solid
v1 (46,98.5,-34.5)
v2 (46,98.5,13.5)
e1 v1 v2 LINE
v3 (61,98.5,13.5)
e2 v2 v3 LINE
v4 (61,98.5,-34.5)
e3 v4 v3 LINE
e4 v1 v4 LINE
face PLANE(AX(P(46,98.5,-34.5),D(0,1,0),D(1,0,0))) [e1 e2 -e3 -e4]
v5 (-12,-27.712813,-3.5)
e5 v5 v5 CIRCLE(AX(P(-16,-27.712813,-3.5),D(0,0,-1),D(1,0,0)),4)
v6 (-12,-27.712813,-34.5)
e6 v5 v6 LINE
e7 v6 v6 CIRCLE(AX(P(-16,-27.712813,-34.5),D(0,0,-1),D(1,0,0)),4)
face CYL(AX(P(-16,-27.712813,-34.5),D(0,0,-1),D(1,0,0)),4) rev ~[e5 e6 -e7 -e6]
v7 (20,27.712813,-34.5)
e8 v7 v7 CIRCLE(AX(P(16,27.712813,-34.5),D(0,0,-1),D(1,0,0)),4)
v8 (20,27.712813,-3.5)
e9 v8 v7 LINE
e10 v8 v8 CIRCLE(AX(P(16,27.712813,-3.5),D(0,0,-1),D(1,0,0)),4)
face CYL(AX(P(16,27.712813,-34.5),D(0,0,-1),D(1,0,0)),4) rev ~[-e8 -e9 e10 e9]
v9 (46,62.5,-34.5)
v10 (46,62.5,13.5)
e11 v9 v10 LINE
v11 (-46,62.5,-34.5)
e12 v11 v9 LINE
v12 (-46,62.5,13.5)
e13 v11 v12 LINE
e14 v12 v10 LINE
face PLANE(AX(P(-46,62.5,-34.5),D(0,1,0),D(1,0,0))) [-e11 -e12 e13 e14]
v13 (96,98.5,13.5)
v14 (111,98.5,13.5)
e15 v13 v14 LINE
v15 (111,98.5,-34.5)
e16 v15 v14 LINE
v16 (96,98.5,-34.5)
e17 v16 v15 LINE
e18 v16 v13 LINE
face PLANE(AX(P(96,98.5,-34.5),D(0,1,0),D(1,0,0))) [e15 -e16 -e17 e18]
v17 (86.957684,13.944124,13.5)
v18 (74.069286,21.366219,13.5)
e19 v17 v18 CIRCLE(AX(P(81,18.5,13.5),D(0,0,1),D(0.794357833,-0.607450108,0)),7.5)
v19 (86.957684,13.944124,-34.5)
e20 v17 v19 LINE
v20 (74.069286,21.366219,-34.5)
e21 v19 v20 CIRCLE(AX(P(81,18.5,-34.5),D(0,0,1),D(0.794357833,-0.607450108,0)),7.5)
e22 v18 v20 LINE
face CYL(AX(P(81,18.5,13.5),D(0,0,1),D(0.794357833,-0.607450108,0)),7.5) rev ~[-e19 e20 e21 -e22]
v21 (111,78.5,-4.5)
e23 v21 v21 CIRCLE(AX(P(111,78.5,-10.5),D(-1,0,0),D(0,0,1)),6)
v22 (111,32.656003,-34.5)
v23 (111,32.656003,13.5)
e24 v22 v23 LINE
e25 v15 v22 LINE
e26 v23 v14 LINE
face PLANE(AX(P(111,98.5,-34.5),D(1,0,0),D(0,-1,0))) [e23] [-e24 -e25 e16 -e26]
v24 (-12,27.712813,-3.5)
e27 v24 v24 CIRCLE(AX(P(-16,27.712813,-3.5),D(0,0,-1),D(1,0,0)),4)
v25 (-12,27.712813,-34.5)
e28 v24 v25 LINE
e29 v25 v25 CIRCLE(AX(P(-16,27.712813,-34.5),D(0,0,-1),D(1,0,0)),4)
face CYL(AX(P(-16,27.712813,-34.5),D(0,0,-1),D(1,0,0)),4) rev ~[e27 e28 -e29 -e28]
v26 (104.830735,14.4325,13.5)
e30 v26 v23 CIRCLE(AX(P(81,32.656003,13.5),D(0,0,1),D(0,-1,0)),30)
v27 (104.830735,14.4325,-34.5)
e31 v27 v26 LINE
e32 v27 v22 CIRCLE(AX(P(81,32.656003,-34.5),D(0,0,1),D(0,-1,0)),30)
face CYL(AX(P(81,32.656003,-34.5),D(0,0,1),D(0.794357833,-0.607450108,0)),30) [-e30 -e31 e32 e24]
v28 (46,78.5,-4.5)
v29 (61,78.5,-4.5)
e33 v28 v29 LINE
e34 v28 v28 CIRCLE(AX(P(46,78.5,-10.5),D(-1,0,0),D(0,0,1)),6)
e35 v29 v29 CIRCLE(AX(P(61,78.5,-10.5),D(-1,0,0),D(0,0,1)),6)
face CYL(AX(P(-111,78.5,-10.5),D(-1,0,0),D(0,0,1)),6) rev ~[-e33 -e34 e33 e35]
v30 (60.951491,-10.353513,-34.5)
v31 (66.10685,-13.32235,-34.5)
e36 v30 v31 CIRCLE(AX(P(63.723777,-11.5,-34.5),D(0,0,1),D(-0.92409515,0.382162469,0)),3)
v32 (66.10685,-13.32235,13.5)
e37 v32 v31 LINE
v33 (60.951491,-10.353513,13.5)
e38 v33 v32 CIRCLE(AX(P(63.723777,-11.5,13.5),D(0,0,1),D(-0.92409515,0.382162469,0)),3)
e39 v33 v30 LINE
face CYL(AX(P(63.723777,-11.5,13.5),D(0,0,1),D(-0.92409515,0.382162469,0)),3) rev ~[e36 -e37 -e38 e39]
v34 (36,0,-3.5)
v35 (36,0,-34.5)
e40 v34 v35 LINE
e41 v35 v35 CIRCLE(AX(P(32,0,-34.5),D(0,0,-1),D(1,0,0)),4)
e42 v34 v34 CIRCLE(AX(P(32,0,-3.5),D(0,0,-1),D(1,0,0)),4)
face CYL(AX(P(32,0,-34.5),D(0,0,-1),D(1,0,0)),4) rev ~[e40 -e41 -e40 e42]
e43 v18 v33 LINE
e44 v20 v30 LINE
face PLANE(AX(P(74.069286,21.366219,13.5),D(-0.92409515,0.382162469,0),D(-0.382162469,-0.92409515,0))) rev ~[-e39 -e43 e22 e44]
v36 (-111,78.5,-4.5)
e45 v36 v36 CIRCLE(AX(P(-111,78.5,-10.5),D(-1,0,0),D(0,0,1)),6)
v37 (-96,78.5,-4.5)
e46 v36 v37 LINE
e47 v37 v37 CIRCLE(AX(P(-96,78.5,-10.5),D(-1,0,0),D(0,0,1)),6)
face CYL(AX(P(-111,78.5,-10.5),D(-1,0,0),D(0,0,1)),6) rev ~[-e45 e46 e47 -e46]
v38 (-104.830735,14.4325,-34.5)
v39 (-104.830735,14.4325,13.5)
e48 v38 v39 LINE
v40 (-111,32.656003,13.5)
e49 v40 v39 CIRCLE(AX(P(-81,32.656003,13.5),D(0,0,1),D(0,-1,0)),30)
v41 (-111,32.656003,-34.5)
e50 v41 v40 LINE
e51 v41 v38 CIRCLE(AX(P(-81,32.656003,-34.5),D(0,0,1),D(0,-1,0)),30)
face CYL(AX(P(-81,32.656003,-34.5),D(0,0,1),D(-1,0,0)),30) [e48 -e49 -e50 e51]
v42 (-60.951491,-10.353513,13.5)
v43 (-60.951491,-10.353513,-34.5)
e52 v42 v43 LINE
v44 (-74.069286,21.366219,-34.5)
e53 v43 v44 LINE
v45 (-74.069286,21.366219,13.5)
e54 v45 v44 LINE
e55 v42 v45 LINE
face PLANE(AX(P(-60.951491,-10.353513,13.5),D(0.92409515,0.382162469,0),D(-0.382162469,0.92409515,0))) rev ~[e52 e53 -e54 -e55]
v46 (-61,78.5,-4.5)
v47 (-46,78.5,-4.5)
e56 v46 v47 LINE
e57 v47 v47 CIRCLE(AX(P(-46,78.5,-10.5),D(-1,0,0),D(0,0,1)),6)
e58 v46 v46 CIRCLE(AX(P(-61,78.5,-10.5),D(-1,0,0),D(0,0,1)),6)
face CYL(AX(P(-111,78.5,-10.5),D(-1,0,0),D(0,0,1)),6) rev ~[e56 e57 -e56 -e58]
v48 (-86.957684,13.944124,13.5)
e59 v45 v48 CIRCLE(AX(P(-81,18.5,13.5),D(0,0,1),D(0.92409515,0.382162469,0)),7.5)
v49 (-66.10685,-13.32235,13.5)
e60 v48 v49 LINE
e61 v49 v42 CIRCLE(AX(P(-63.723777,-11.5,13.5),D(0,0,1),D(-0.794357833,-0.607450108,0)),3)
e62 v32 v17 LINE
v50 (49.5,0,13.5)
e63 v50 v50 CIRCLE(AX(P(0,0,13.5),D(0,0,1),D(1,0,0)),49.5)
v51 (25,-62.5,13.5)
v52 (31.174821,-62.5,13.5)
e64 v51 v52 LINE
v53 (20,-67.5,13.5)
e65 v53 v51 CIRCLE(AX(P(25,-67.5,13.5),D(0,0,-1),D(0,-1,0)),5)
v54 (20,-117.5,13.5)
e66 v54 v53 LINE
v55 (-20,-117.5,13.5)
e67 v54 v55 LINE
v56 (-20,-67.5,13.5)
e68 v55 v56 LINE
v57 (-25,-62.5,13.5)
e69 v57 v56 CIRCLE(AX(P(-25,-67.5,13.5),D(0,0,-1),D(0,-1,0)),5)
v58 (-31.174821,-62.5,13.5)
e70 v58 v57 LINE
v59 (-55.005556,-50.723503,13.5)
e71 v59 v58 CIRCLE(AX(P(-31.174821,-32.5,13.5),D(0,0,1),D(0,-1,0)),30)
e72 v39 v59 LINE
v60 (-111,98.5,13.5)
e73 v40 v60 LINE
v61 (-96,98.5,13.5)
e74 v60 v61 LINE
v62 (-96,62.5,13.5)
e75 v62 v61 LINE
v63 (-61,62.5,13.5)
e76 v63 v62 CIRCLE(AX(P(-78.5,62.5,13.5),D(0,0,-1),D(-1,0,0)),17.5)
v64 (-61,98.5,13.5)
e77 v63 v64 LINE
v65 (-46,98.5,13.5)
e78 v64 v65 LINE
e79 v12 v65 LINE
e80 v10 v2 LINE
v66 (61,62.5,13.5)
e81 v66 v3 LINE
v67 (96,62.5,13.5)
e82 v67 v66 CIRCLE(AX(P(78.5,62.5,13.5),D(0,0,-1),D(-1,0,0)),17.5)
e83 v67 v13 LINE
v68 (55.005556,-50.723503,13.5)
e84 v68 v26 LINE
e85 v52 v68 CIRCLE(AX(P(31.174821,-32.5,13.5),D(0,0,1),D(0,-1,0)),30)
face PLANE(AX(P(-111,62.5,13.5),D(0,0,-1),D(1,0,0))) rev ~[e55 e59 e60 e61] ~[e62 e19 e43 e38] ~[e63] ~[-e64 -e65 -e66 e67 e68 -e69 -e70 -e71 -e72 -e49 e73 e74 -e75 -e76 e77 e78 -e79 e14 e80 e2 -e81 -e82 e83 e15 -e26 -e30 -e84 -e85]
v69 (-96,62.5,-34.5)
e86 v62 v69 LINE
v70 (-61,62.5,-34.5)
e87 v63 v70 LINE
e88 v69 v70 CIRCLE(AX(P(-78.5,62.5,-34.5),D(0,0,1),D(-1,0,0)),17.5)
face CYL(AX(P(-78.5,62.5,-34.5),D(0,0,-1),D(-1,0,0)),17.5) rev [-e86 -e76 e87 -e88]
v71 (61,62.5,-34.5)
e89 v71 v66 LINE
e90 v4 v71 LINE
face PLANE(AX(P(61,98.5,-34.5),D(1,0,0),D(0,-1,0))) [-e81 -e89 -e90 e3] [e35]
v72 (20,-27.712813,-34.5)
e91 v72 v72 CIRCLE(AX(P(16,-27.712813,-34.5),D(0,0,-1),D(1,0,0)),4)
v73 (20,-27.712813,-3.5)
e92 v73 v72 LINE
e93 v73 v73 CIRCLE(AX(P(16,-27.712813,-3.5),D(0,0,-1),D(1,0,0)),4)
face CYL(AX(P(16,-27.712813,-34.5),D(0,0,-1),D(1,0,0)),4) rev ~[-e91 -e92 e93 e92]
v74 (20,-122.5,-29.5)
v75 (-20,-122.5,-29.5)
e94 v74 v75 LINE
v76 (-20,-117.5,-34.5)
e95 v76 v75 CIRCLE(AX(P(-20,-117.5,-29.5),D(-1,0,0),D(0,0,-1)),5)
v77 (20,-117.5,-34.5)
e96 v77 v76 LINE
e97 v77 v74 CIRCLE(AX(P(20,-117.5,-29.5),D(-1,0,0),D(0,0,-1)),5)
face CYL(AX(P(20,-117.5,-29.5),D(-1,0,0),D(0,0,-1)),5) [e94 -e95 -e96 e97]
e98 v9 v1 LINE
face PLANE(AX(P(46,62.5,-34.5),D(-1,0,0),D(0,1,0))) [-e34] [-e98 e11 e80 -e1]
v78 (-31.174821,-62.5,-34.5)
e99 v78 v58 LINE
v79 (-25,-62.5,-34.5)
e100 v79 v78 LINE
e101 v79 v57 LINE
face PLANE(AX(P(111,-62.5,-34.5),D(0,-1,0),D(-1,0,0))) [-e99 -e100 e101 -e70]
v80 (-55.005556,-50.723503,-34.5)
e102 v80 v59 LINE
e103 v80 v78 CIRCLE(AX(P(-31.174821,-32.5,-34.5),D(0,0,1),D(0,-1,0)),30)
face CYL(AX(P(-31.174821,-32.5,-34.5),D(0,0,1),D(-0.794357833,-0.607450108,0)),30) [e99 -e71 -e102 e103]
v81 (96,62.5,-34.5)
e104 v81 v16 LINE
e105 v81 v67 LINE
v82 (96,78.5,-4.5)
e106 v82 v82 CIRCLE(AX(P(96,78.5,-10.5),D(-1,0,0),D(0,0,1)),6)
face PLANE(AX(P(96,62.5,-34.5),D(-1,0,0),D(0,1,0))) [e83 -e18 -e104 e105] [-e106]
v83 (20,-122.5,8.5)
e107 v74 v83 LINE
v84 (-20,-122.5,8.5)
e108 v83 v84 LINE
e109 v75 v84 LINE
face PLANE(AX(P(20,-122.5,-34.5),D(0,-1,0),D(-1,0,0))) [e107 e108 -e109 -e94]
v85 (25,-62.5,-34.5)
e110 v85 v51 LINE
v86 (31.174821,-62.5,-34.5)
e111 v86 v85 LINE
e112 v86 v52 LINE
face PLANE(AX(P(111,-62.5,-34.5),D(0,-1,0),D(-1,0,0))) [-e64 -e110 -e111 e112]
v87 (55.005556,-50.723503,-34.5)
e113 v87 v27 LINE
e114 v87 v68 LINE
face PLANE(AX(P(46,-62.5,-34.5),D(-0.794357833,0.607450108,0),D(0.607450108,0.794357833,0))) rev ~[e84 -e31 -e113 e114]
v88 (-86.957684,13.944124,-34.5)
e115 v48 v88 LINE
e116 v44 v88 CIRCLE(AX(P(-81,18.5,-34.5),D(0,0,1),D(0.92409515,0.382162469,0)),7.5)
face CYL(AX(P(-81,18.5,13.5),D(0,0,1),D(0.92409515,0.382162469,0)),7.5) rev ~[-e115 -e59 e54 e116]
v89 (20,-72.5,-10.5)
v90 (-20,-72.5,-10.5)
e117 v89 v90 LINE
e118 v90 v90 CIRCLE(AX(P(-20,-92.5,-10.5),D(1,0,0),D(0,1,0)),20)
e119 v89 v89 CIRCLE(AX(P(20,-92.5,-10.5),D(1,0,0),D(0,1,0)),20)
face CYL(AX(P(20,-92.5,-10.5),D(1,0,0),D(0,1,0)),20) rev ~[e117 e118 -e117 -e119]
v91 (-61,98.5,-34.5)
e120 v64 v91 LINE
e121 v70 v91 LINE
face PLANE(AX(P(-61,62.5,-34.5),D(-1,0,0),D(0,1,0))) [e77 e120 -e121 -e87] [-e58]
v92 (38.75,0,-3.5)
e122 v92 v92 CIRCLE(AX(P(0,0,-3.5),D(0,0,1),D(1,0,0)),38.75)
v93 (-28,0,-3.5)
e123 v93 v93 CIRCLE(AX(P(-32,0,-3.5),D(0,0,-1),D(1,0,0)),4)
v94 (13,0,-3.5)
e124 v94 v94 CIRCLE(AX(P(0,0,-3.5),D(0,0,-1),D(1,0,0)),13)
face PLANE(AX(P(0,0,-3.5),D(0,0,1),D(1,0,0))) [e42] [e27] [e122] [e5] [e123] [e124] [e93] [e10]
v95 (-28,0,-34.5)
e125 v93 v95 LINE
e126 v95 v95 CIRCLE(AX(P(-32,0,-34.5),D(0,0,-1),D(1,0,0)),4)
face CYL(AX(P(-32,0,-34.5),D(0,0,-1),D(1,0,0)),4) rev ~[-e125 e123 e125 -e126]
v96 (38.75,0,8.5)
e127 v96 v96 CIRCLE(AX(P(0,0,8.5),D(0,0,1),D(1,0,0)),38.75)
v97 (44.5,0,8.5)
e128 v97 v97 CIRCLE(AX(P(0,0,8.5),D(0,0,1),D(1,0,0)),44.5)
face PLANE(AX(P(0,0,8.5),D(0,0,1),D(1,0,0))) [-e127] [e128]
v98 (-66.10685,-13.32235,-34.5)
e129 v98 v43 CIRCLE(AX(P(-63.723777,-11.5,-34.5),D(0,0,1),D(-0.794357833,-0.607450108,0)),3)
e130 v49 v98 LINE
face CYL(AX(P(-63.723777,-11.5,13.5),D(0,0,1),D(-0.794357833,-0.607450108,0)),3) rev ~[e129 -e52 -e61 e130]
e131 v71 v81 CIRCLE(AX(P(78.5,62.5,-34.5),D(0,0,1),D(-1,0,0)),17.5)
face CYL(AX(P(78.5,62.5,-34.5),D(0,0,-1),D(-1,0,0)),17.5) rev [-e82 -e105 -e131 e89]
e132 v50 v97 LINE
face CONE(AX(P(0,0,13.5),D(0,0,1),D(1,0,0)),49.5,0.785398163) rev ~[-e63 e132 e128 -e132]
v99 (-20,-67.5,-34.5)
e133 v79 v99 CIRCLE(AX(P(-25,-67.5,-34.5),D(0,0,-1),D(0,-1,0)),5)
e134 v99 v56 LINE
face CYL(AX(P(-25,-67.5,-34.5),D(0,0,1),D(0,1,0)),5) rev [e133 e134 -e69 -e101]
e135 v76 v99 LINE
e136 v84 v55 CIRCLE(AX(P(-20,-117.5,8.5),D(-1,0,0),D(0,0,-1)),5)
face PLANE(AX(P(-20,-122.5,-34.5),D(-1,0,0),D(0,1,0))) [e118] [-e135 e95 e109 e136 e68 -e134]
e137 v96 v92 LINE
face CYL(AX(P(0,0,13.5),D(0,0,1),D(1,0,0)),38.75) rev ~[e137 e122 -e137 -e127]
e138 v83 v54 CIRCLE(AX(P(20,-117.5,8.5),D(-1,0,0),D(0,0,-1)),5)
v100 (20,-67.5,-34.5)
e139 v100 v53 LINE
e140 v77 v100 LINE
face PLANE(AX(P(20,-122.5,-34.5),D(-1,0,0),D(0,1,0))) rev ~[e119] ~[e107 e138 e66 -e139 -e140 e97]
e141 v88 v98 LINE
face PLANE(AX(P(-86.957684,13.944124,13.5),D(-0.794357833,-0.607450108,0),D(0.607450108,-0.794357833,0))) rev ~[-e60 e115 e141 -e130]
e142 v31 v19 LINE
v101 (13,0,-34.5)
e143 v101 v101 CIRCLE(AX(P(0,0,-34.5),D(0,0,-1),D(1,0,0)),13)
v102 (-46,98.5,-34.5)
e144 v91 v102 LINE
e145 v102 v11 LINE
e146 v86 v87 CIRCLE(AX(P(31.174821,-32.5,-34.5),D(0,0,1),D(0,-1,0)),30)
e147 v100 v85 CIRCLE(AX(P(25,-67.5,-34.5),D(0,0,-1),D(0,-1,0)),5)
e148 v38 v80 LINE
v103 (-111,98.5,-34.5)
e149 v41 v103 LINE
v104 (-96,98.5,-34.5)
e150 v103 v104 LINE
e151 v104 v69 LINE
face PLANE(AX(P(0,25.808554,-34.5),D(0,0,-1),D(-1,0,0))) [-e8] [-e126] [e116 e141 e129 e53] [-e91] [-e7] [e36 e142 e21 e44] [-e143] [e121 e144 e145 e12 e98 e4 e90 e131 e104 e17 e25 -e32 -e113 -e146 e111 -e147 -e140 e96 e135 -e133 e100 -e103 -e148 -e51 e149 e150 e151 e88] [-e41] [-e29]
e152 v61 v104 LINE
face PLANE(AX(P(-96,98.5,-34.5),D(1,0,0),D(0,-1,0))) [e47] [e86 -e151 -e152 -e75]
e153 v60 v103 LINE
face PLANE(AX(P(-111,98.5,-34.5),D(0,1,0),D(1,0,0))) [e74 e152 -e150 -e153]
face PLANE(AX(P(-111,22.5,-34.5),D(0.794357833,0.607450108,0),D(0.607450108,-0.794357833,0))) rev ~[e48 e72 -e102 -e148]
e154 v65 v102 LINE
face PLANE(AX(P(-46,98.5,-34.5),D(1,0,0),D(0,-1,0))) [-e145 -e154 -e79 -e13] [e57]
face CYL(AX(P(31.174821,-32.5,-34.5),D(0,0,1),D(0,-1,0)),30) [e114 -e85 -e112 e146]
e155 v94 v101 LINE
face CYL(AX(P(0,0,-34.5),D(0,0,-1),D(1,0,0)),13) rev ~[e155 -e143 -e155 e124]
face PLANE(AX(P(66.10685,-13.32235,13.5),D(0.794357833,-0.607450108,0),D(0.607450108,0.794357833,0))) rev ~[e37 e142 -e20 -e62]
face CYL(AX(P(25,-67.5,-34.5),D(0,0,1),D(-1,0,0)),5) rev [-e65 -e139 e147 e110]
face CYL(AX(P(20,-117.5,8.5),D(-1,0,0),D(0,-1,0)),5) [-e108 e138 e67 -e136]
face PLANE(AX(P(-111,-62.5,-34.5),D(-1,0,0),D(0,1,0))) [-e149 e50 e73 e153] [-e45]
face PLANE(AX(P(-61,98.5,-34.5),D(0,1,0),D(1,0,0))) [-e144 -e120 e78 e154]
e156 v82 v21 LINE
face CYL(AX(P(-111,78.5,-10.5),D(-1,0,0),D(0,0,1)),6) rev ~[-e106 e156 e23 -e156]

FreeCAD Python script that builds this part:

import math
import FreeCAD as App
import Part
import Sketcher

V = App.Vector


def edges_at(feature, points):
    """Names of the edges that pass closest to the given points."""
    edges = feature.Shape.Edges
    near = lambda p: min(range(len(edges)), key=lambda i: edges[i].distToShape(Part.Vertex(*p))[0])
    return sorted({f"Edge{near(p) + 1}" for p in points})


def faces_at(feature, points):
    """Names of the faces that lie closest to the given points."""
    faces = feature.Shape.Faces
    near = lambda p: min(range(len(faces)), key=lambda i: faces[i].distToShape(Part.Vertex(*p))[0])
    return sorted({f"Face{near(p) + 1}" for p in points})


def add_polygon(sketch, points):
    """Adds a closed chain of lines whose ends are joined by coincident constraints."""
    first, n = sketch.GeometryCount, len(points)
    for a, b in zip(points, points[1:] + points[:1]):
        sketch.addGeometry(Part.LineSegment(App.Vector(*a, 0), App.Vector(*b, 0)), False)
    for i in range(n):
        sketch.addConstraint(Sketcher.Constraint("Coincident", first + i, 2, first + (i + 1) % n, 1))

doc = App.newDocument("Part")
body = doc.addObject("PartDesign::Body", "Body")

# Sketch on XY plane
sketch1 = body.newObject("Sketcher::SketchObject", "Sketch")
sketch1.AttachmentSupport = (doc.getObject("XY_Plane"), [""])
sketch1.MapMode = "FlatFace"
add_polygon(sketch1, [(-111, 62.5), (-111, -62.5), (111, -62.5), (111, 62.5)])  # lines 0-3
sketch1.addGeometry(Part.Circle(V(-16, -27.7, 0), V(0, 0, 1), 4), False)  # 4
sketch1.addGeometry(Part.Circle(V(16, -27.7, 0), V(0, 0, 1), 4), False)  # 5
sketch1.addGeometry(Part.Circle(V(-32, 0, 0), V(0, 0, 1), 4), False)  # 6
sketch1.addGeometry(Part.Circle(V(-16, 27.7, 0), V(0, 0, 1), 4), False)  # 7
sketch1.addGeometry(Part.Circle(V(0, 0, 0), V(0, 0, 1), 13), False)  # 8
sketch1.addGeometry(Part.Circle(V(32, 0, 0), V(0, 0, 1), 4), False)  # 9
sketch1.addGeometry(Part.Circle(V(16, 27.7, 0), V(0, 0, 1), 4), False)  # 10
sketch1.addConstraint(Sketcher.Constraint("Vertical", 0))
sketch1.addConstraint(Sketcher.Constraint("Horizontal", 1))
sketch1.addConstraint(Sketcher.Constraint("Vertical", 2))
sketch1.addConstraint(Sketcher.Constraint("Horizontal", 3))
sketch1.addConstraint(Sketcher.Constraint("Coincident", 8, 3, -1, 1))
sketch1.addConstraint(Sketcher.Constraint("Equal", 4, 5))
sketch1.addConstraint(Sketcher.Constraint("Equal", 5, 6))
sketch1.addConstraint(Sketcher.Constraint("Equal", 6, 7))
sketch1.addConstraint(Sketcher.Constraint("Equal", 7, 9))
sketch1.addConstraint(Sketcher.Constraint("Equal", 9, 10))
sketch1.addConstraint(Sketcher.Constraint("Symmetric", 5, 3, 7, 3, -1, 1))
sketch1.addConstraint(Sketcher.Constraint("Symmetric", 6, 3, 9, 3, -1, 1))
sketch1.addConstraint(Sketcher.Constraint("Symmetric", 4, 3, 10, 3, -1, 1))
sketch1.addConstraint(Sketcher.Constraint("Symmetric", 0, 2, 2, 2, -1, 1))
sketch1.addConstraint(Sketcher.Constraint("Symmetric", 4, 3, 5, 3, -2))
sketch1.addConstraint(Sketcher.Constraint("PointOnObject", 6, 3, -1))
sketch1.addConstraint(Sketcher.Constraint("Diameter", 4, 8.0))
sketch1.addConstraint(Sketcher.Constraint("Diameter", 8, 26.0))
sketch1.addConstraint(Sketcher.Constraint("DistanceX", 1, 1, 1, 2, 222.0))
sketch1.addConstraint(Sketcher.Constraint("DistanceY", 0, 2, 0, 1, 125.0))
sketch1.addConstraint(Sketcher.Constraint("DistanceX", 4, 3, -1, 1, 16.0))
sketch1.addConstraint(Sketcher.Constraint("DistanceX", 6, 3, -1, 1, 32.0))
sketch1.addConstraint(Sketcher.Constraint("DistanceY", 4, 3, -1, 1, 27.712813))
pad1 = body.newObject("PartDesign::Pad", "Pad")
pad1.Profile = sketch1
pad1.Type = "TwoLengths"
pad1.Length = 13.5
pad1.Length2 = 13.5

# Sketch on XZ plane
sketch2 = body.newObject("Sketcher::SketchObject", "Sketch001")
sketch2.AttachmentSupport = (doc.getObject("XZ_Plane"), [""])
sketch2.MapMode = "FlatFace"
sketch2.AttachmentOffset = App.Placement(V(0, 0, -62.5), App.Rotation())
add_polygon(sketch2, [(-111, -14), (-111, 14), (-96, 14), (-96, -14)])  # lines 0-3
add_polygon(sketch2, [(-61, -14), (-61, 14), (-46, 14), (-46, -14)])  # lines 4-7
add_polygon(sketch2, [(46, -14), (46, 14), (61, 14), (61, -14)])  # lines 8-11
add_polygon(sketch2, [(96, -14), (96, 14), (111, 14), (111, -14)])  # lines 12-15
sketch2.addConstraint(Sketcher.Constraint("Vertical", 0))
sketch2.addConstraint(Sketcher.Constraint("Horizontal", 1))
sketch2.addConstraint(Sketcher.Constraint("Vertical", 2))
sketch2.addConstraint(Sketcher.Constraint("Horizontal", 3))
sketch2.addConstraint(Sketcher.Constraint("Vertical", 4))
sketch2.addConstraint(Sketcher.Constraint("Horizontal", 5))
sketch2.addConstraint(Sketcher.Constraint("Vertical", 6))
sketch2.addConstraint(Sketcher.Constraint("Horizontal", 7))
sketch2.addConstraint(Sketcher.Constraint("Vertical", 8))
sketch2.addConstraint(Sketcher.Constraint("Horizontal", 9))
sketch2.addConstraint(Sketcher.Constraint("Vertical", 10))
sketch2.addConstraint(Sketcher.Constraint("Horizontal", 11))
sketch2.addConstraint(Sketcher.Constraint("Vertical", 12))
sketch2.addConstraint(Sketcher.Constraint("Horizontal", 13))
sketch2.addConstraint(Sketcher.Constraint("Vertical", 14))
sketch2.addConstraint(Sketcher.Constraint("Horizontal", 15))
sketch2.addConstraint(Sketcher.Constraint("Symmetric", 6, 2, 8, 2, -1, 1))
sketch2.addConstraint(Sketcher.Constraint("Symmetric", 4, 2, 10, 2, -1, 1))
sketch2.addConstraint(Sketcher.Constraint("Symmetric", 2, 2, 12, 2, -1, 1))
sketch2.addConstraint(Sketcher.Constraint("Symmetric", 0, 2, 14, 2, -1, 1))
sketch2.addConstraint(Sketcher.Constraint("Horizontal", 1, 2, 4, 2))
sketch2.addConstraint(Sketcher.Constraint("Horizontal", 3, 2, 6, 2))
sketch2.addConstraint(Sketcher.Constraint("Horizontal", 5, 2, 8, 2))
sketch2.addConstraint(Sketcher.Constraint("Equal", 3, 5))
sketch2.addConstraint(Sketcher.Constraint("DistanceX", 1, 1, 1, 2, 15.0))
sketch2.addConstraint(Sketcher.Constraint("DistanceY", 0, 1, 0, 2, 27.0))
sketch2.addConstraint(Sketcher.Constraint("DistanceX", 0, 2, -1, 1, 111.0))
sketch2.addConstraint(Sketcher.Constraint("DistanceX", 4, 2, -1, 1, 61.0))
pad2 = body.newObject("PartDesign::Pad", "Pad001")
pad2.Profile = sketch2
pad2.Length = 36
pad2.Reversed = True

# Sketch on XY plane
sketch3 = body.newObject("Sketcher::SketchObject", "Sketch002")
sketch3.AttachmentSupport = (doc.getObject("XY_Plane"), [""])
sketch3.MapMode = "FlatFace"
sketch3.AttachmentOffset = App.Placement(V(0, 0, 13.5), App.Rotation())
sketch3.addGeometry(Part.Circle(V(0, 0, 0), V(0, 0, 1), 39), False)
sketch3.addConstraint(Sketcher.Constraint("Coincident", 0, 3, -1, 1))
sketch3.addConstraint(Sketcher.Constraint("Diameter", 0, 77.5))
pocket1 = body.newObject("PartDesign::Pocket", "Pocket")
pocket1.Profile = sketch3
pocket1.Length = 17

# Sketch on XY plane
sketch4 = body.newObject("Sketcher::SketchObject", "Sketch003")
sketch4.AttachmentSupport = (doc.getObject("XY_Plane"), [""])
sketch4.MapMode = "FlatFace"
sketch4.AttachmentOffset = App.Placement(V(0, 0, 13.5), App.Rotation())
sketch4.addGeometry(Part.Circle(V(0, 0, 0), V(0, 0, 1), 44), False)
sketch4.addConstraint(Sketcher.Constraint("Coincident", 0, 3, -1, 1))
sketch4.addConstraint(Sketcher.Constraint("Diameter", 0, 89.0))
pocket2 = body.newObject("PartDesign::Pocket", "Pocket001")
pocket2.Profile = sketch4
pocket2.Length = 5
doc.recompute()

datumplane = body.newObject("PartDesign::Plane", "DatumPlane")
datumplane.AttachmentSupport = (doc.getObject("XY_Plane"), [""])
datumplane.MapMode = "FlatFace"
datumplane.AttachmentOffset = App.Placement(V(0, 0, 8.5), App.Rotation())
draft = body.newObject("PartDesign::Draft", "Draft")
draft.Base = (pocket2, faces_at(pocket2, [(-44.5, 0, 11)]))
draft.NeutralPlane = (datumplane, [""])
draft.Angle = 45
draft.Reversed = False

# Sketch on XY plane
sketch5 = body.newObject("Sketcher::SketchObject", "Sketch004")
sketch5.AttachmentSupport = (doc.getObject("XY_Plane"), [""])
sketch5.MapMode = "FlatFace"
sketch5.AttachmentOffset = App.Placement(V(0, 0, -34.5), App.Rotation())
add_polygon(sketch5, [(111, 98.5), (111, -62.5), (-111, -62.5), (-111, 98.5), (-96, 98.5), (-96, 62.5), (-61, 62.5), (-61, 98.5), (-46, 98.5), (-46, 62.5), (46, 62.5), (46, 98.5), (61, 98.5), (61, 62.5), (96, 62.5), (96, 98.5)])  # lines 0-15
sketch5.addGeometry(Part.Circle(V(16, -27.7, 0), V(0, 0, 1), 4), False)  # 16
sketch5.addGeometry(Part.Circle(V(-16, -27.7, 0), V(0, 0, 1), 4), False)  # 17
sketch5.addGeometry(Part.Circle(V(32, 0, 0), V(0, 0, 1), 4), False)  # 18
sketch5.addGeometry(Part.Circle(V(16, 27.7, 0), V(0, 0, 1), 4), False)  # 19
sketch5.addGeometry(Part.Circle(V(0, 0, 0), V(0, 0, 1), 13), False)  # 20
sketch5.addGeometry(Part.Circle(V(-32, 0, 0), V(0, 0, 1), 4), False)  # 21
sketch5.addGeometry(Part.Circle(V(-16, 27.7, 0), V(0, 0, 1), 4), False)  # 22
sketch5.addConstraint(Sketcher.Constraint("Vertical", 0))
sketch5.addConstraint(Sketcher.Constraint("Horizontal", 1))
sketch5.addConstraint(Sketcher.Constraint("Vertical", 2))
sketch5.addConstraint(Sketcher.Constraint("Horizontal", 3))
sketch5.addConstraint(Sketcher.Constraint("Vertical", 4))
sketch5.addConstraint(Sketcher.Constraint("Horizontal", 5))
sketch5.addConstraint(Sketcher.Constraint("Vertical", 6))
sketch5.addConstraint(Sketcher.Constraint("Horizontal", 7))
sketch5.addConstraint(Sketcher.Constraint("Vertical", 8))
sketch5.addConstraint(Sketcher.Constraint("Horizontal", 9))
sketch5.addConstraint(Sketcher.Constraint("Vertical", 10))
sketch5.addConstraint(Sketcher.Constraint("Horizontal", 11))
sketch5.addConstraint(Sketcher.Constraint("Vertical", 12))
sketch5.addConstraint(Sketcher.Constraint("Horizontal", 13))
sketch5.addConstraint(Sketcher.Constraint("Vertical", 14))
sketch5.addConstraint(Sketcher.Constraint("Horizontal", 15))
sketch5.addConstraint(Sketcher.Constraint("Coincident", 20, 3, -1, 1))
sketch5.addConstraint(Sketcher.Constraint("Equal", 16, 17))
sketch5.addConstraint(Sketcher.Constraint("Equal", 17, 18))
sketch5.addConstraint(Sketcher.Constraint("Equal", 18, 19))
sketch5.addConstraint(Sketcher.Constraint("Equal", 19, 21))
sketch5.addConstraint(Sketcher.Constraint("Equal", 21, 22))
sketch5.addConstraint(Sketcher.Constraint("Symmetric", 17, 3, 19, 3, -1, 1))
sketch5.addConstraint(Sketcher.Constraint("Symmetric", 18, 3, 21, 3, -1, 1))
sketch5.addConstraint(Sketcher.Constraint("Symmetric", 16, 3, 22, 3, -1, 1))
sketch5.addConstraint(Sketcher.Constraint("Symmetric", 16, 3, 17, 3, -2))
sketch5.addConstraint(Sketcher.Constraint("Symmetric", 7, 2, 10, 2, -2))
sketch5.addConstraint(Sketcher.Constraint("Symmetric", 5, 2, 12, 2, -2))
sketch5.addConstraint(Sketcher.Constraint("Symmetric", 3, 2, 14, 2, -2))
sketch5.addConstraint(Sketcher.Constraint("PointOnObject", 18, 3, -1))
sketch5.addConstraint(Sketcher.Constraint("Horizontal", 3, 2, 6, 2))
sketch5.addConstraint(Sketcher.Constraint("Horizontal", 5, 2, 8, 2))
sketch5.addConstraint(Sketcher.Constraint("Equal", 3, 7))
sketch5.addConstraint(Sketcher.Constraint("Equal", 11, 15))
sketch5.addConstraint(Sketcher.Constraint("Diameter", 16, 8.0))
sketch5.addConstraint(Sketcher.Constraint("Diameter", 20, 26.0))
sketch5.addConstraint(Sketcher.Constraint("DistanceX", 1, 2, 1, 1, 222.0))
sketch5.addConstraint(Sketcher.Constraint("DistanceX", 3, 1, 3, 2, 15.0))
sketch5.addConstraint(Sketcher.Constraint("DistanceX", 5, 1, 5, 2, 35.0))
sketch5.addConstraint(Sketcher.Constraint("DistanceY", 0, 2, 0, 1, 161.0))
sketch5.addConstraint(Sketcher.Constraint("DistanceY", 4, 2, 4, 1, 36.0))
sketch5.addConstraint(Sketcher.Constraint("DistanceX", -1, 1, 16, 3, 16.0))
sketch5.addConstraint(Sketcher.Constraint("DistanceX", -1, 1, 18, 3, 32.0))
sketch5.addConstraint(Sketcher.Constraint("DistanceY", 0, 2, -1, 1, 62.5))
sketch5.addConstraint(Sketcher.Constraint("DistanceY", 16, 3, -1, 1, 27.712813))
pad3 = body.newObject("PartDesign::Pad", "Pad002")
pad3.Profile = sketch5
pad3.Length = 21

# Sketch on YZ plane
sketch6 = body.newObject("Sketcher::SketchObject", "Sketch005")
sketch6.AttachmentSupport = (doc.getObject("YZ_Plane"), [""])
sketch6.MapMode = "FlatFace"
sketch6.AttachmentOffset = App.Placement(V(0, 0, -111), App.Rotation())
sketch6.addGeometry(Part.Circle(V(78, -10, 0), V(0, 0, 1), 6), False)
sketch6.addConstraint(Sketcher.Constraint("Diameter", 0, 12.0))
sketch6.addConstraint(Sketcher.Constraint("DistanceX", -1, 1, 0, 3, 78.5))
sketch6.addConstraint(Sketcher.Constraint("DistanceY", 0, 3, -1, 1, 10.5))
pocket3 = body.newObject("PartDesign::Pocket", "Pocket002")
pocket3.Profile = sketch6
pocket3.Type = "ThroughAll"
pocket3.Reversed = True

# Sketch on XY plane
sketch7 = body.newObject("Sketcher::SketchObject", "Sketch006")
sketch7.AttachmentSupport = (doc.getObject("XY_Plane"), [""])
sketch7.MapMode = "FlatFace"
sketch7.AttachmentOffset = App.Placement(V(0, 0, -34.5), App.Rotation())
add_polygon(sketch7, [(-111, 22), (-46, -62), (-111, -62)])  # lines 0-2
add_polygon(sketch7, [(111, -62), (46, -62), (111, 22)])  # lines 3-5
sketch7.addConstraint(Sketcher.Constraint("Horizontal", 1))
sketch7.addConstraint(Sketcher.Constraint("Vertical", 2))
sketch7.addConstraint(Sketcher.Constraint("Horizontal", 3))
sketch7.addConstraint(Sketcher.Constraint("Vertical", 5))
sketch7.addConstraint(Sketcher.Constraint("Symmetric", 0, 2, 3, 2, -2))
sketch7.addConstraint(Sketcher.Constraint("Symmetric", 2, 2, 4, 2, -2))
sketch7.addConstraint(Sketcher.Constraint("DistanceX", 1, 2, 1, 1, 65.0))
sketch7.addConstraint(Sketcher.Constraint("DistanceY", 2, 1, 2, 2, 85.0))
sketch7.addConstraint(Sketcher.Constraint("DistanceX", 0, 2, -1, 1, 46.0))
sketch7.addConstraint(Sketcher.Constraint("DistanceY", 0, 2, -1, 1, 62.5))
pocket4 = body.newObject("PartDesign::Pocket", "Pocket003")
pocket4.Profile = sketch7
pocket4.Type = "ThroughAll"
pocket4.Reversed = True
doc.recompute()

fillet = body.newObject("PartDesign::Fillet", "Fillet")
fillet.Base = (pocket4, edges_at(pocket4, [(-111, 22.5, -10.5)]))
fillet.Radius = 30
doc.recompute()

fillet2 = body.newObject("PartDesign::Fillet", "Fillet001")
fillet2.Base = (fillet, edges_at(fillet, [(-46, -62.5, -10.5), (111, 22.5, -10.5), (46, -62.5, -10.5)]))
fillet2.Radius = 30

# Sketch on XY plane
sketch8 = body.newObject("Sketcher::SketchObject", "Sketch007")
sketch8.AttachmentSupport = (doc.getObject("XY_Plane"), [""])
sketch8.MapMode = "FlatFace"
sketch8.AttachmentOffset = App.Placement(V(0, 0, -34.5), App.Rotation())
add_polygon(sketch8, [(20, -62), (20, -122), (-20, -122), (-20, -62)])  # lines 0-3
sketch8.addConstraint(Sketcher.Constraint("Vertical", 0))
sketch8.addConstraint(Sketcher.Constraint("Horizontal", 1))
sketch8.addConstraint(Sketcher.Constraint("Vertical", 2))
sketch8.addConstraint(Sketcher.Constraint("Horizontal", 3))
sketch8.addConstraint(Sketcher.Constraint("DistanceX", 1, 2, 1, 1, 40.0))
sketch8.addConstraint(Sketcher.Constraint("DistanceY", 0, 2, 0, 1, 60.0))
sketch8.addConstraint(Sketcher.Constraint("DistanceX", -1, 1, 0, 2, 20.0))
sketch8.addConstraint(Sketcher.Constraint("DistanceY", 0, 2, -1, 1, 122.5))
pad4 = body.newObject("PartDesign::Pad", "Pad003")
pad4.Profile = sketch8
pad4.Length = 48

# Sketch on YZ plane
sketch9 = body.newObject("Sketcher::SketchObject", "Sketch008")
sketch9.AttachmentSupport = (doc.getObject("YZ_Plane"), [""])
sketch9.MapMode = "FlatFace"
sketch9.AttachmentOffset = App.Placement(V(0, 0, 20), App.Rotation())
sketch9.addGeometry(Part.Circle(V(-92, -10, 0), V(0, 0, 1), 20), False)
sketch9.addConstraint(Sketcher.Constraint("Diameter", 0, 40.0))
sketch9.addConstraint(Sketcher.Constraint("DistanceX", 0, 3, -1, 1, 92.5))
sketch9.addConstraint(Sketcher.Constraint("DistanceY", 0, 3, -1, 1, 10.5))
pocket5 = body.newObject("PartDesign::Pocket", "Pocket004")
pocket5.Profile = sketch9
pocket5.Type = "UpToFirst"

# Sketch on XY plane
sketch10 = body.newObject("Sketcher::SketchObject", "Sketch009")
sketch10.AttachmentSupport = (doc.getObject("XY_Plane"), [""])
sketch10.MapMode = "FlatFace"
sketch10.AttachmentOffset = App.Placement(V(0, 0, -34.5), App.Rotation())
sketch10.addGeometry(Part.LineSegment(V(61, 62, 0), V(96, 62, 0)), False)
sketch10.addGeometry(Part.ArcOfCircle(Part.Circle(V(78, 62, 0), V(0, 0, 1), 18), math.radians(180), math.radians(360)), False)
sketch10.addConstraint(Sketcher.Constraint("Coincident", 0, 1, 1, 1))
sketch10.addConstraint(Sketcher.Constraint("Coincident", 1, 2, 0, 2))
sketch10.addConstraint(Sketcher.Constraint("Horizontal", 0))
sketch10.addConstraint(Sketcher.Constraint("Horizontal", 1, 3, 0, 1))
sketch10.addConstraint(Sketcher.Constraint("Radius", 1, 17.5))
sketch10.addConstraint(Sketcher.Constraint("DistanceX", -1, 1, 0, 1, 61.0))
sketch10.addConstraint(Sketcher.Constraint("DistanceY", -1, 1, 1, 3, 62.5))
pocket6 = body.newObject("PartDesign::Pocket", "Pocket005")
pocket6.Profile = sketch10
pocket6.Type = "UpToFirst"
pocket6.Reversed = True

# Sketch on XY plane
sketch11 = body.newObject("Sketcher::SketchObject", "Sketch010")
sketch11.AttachmentSupport = (doc.getObject("XY_Plane"), [""])
sketch11.MapMode = "FlatFace"
sketch11.AttachmentOffset = App.Placement(V(0, 0, -34.5), App.Rotation())
sketch11.addGeometry(Part.LineSegment(V(-96, 62, 0), V(-61, 62, 0)), False)
sketch11.addGeometry(Part.ArcOfCircle(Part.Circle(V(-78, 62, 0), V(0, 0, 1), 18), math.radians(180), math.radians(360)), False)
sketch11.addConstraint(Sketcher.Constraint("Coincident", 0, 1, 1, 1))
sketch11.addConstraint(Sketcher.Constraint("Coincident", 1, 2, 0, 2))
sketch11.addConstraint(Sketcher.Constraint("Horizontal", 0))
sketch11.addConstraint(Sketcher.Constraint("Horizontal", 1, 3, 0, 1))
sketch11.addConstraint(Sketcher.Constraint("Radius", 1, 17.5))
sketch11.addConstraint(Sketcher.Constraint("DistanceX", 0, 1, -1, 1, 96.0))
sketch11.addConstraint(Sketcher.Constraint("DistanceY", -1, 1, 1, 3, 62.5))
pocket7 = body.newObject("PartDesign::Pocket", "Pocket006")
pocket7.Profile = sketch11
pocket7.Type = "UpToFirst"
pocket7.Reversed = True
doc.recompute()

fillet3 = body.newObject("PartDesign::Fillet", "Fillet002")
fillet3.Base = (pocket7, edges_at(pocket7, [(20, -62.5, -10.5), (-20, -62.5, -10.5)]))
fillet3.Radius = 5
doc.recompute()

fillet4 = body.newObject("PartDesign::Fillet", "Fillet003")
fillet4.Base = (fillet3, edges_at(fillet3, [(0, -122.5, -34.5), (0, -122.5, 13.5)]))
fillet4.Radius = 5

# Sketch on XY plane
sketch12 = body.newObject("Sketcher::SketchObject", "Sketch011")
sketch12.AttachmentSupport = (doc.getObject("XY_Plane"), [""])
sketch12.MapMode = "FlatFace"
sketch12.AttachmentOffset = App.Placement(V(0, 0, 13.5), App.Rotation())
sketch12.addGeometry(Part.LineSegment(V(-61, -10.4, 0), V(-74.1, 21.4, 0)), False)
sketch12.addGeometry(Part.ArcOfCircle(Part.Circle(V(-81, 18.5, 0), V(0, 0, 1), 7.5), math.radians(22), math.radians(217)), False)
sketch12.addGeometry(Part.LineSegment(V(-87, 13.9, 0), V(-66.1, -13.3, 0)), False)
sketch12.addGeometry(Part.ArcOfCircle(Part.Circle(V(-63.7, -11.5, 0), V(0, 0, 1), 3), math.radians(-143), math.radians(22)), False)
sketch12.addGeometry(Part.LineSegment(V(66.1, -13.3, 0), V(87, 13.9, 0)), False)
sketch12.addGeometry(Part.ArcOfCircle(Part.Circle(V(81, 18.5, 0), V(0, 0, 1), 7.5), math.radians(-37), math.radians(158)), False)
sketch12.addGeometry(Part.LineSegment(V(74.1, 21.4, 0), V(61, -10.4, 0)), False)
sketch12.addGeometry(Part.ArcOfCircle(Part.Circle(V(63.7, -11.5, 0), V(0, 0, 1), 3), math.radians(158), math.radians(323)), False)
sketch12.addConstraint(Sketcher.Constraint("Tangent", 0, 2, 1, 1))
sketch12.addConstraint(Sketcher.Constraint("Tangent", 1, 2, 2, 1))
sketch12.addConstraint(Sketcher.Constraint("Tangent", 2, 2, 3, 1))
sketch12.addConstraint(Sketcher.Constraint("Tangent", 3, 2, 0, 1))
sketch12.addConstraint(Sketcher.Constraint("Tangent", 4, 2, 5, 1))
sketch12.addConstraint(Sketcher.Constraint("Tangent", 5, 2, 6, 1))
sketch12.addConstraint(Sketcher.Constraint("Tangent", 6, 2, 7, 1))
sketch12.addConstraint(Sketcher.Constraint("Tangent", 7, 2, 4, 1))
sketch12.addConstraint(Sketcher.Constraint("Equal", 1, 5))
sketch12.addConstraint(Sketcher.Constraint("Equal", 3, 7))
sketch12.addConstraint(Sketcher.Constraint("Symmetric", 1, 3, 5, 3, -2))
sketch12.addConstraint(Sketcher.Constraint("Symmetric", 3, 3, 7, 3, -2))
sketch12.addConstraint(Sketcher.Constraint("Radius", 3, 3.0))
sketch12.addConstraint(Sketcher.Constraint("Radius", 1, 7.5))
sketch12.addConstraint(Sketcher.Constraint("DistanceX", 1, 3, -1, 1, 81.0))
sketch12.addConstraint(Sketcher.Constraint("DistanceY", 3, 3, 1, 3, 30.0))
sketch12.addConstraint(Sketcher.Constraint("DistanceY", -1, 1, 1, 3, 18.5))
sketch12.addConstraint(Sketcher.Constraint("Distance", 0, 34.325179))
pocket8 = body.newObject("PartDesign::Pocket", "Pocket007")
pocket8.Profile = sketch12
pocket8.Length = 48

doc.recompute()
